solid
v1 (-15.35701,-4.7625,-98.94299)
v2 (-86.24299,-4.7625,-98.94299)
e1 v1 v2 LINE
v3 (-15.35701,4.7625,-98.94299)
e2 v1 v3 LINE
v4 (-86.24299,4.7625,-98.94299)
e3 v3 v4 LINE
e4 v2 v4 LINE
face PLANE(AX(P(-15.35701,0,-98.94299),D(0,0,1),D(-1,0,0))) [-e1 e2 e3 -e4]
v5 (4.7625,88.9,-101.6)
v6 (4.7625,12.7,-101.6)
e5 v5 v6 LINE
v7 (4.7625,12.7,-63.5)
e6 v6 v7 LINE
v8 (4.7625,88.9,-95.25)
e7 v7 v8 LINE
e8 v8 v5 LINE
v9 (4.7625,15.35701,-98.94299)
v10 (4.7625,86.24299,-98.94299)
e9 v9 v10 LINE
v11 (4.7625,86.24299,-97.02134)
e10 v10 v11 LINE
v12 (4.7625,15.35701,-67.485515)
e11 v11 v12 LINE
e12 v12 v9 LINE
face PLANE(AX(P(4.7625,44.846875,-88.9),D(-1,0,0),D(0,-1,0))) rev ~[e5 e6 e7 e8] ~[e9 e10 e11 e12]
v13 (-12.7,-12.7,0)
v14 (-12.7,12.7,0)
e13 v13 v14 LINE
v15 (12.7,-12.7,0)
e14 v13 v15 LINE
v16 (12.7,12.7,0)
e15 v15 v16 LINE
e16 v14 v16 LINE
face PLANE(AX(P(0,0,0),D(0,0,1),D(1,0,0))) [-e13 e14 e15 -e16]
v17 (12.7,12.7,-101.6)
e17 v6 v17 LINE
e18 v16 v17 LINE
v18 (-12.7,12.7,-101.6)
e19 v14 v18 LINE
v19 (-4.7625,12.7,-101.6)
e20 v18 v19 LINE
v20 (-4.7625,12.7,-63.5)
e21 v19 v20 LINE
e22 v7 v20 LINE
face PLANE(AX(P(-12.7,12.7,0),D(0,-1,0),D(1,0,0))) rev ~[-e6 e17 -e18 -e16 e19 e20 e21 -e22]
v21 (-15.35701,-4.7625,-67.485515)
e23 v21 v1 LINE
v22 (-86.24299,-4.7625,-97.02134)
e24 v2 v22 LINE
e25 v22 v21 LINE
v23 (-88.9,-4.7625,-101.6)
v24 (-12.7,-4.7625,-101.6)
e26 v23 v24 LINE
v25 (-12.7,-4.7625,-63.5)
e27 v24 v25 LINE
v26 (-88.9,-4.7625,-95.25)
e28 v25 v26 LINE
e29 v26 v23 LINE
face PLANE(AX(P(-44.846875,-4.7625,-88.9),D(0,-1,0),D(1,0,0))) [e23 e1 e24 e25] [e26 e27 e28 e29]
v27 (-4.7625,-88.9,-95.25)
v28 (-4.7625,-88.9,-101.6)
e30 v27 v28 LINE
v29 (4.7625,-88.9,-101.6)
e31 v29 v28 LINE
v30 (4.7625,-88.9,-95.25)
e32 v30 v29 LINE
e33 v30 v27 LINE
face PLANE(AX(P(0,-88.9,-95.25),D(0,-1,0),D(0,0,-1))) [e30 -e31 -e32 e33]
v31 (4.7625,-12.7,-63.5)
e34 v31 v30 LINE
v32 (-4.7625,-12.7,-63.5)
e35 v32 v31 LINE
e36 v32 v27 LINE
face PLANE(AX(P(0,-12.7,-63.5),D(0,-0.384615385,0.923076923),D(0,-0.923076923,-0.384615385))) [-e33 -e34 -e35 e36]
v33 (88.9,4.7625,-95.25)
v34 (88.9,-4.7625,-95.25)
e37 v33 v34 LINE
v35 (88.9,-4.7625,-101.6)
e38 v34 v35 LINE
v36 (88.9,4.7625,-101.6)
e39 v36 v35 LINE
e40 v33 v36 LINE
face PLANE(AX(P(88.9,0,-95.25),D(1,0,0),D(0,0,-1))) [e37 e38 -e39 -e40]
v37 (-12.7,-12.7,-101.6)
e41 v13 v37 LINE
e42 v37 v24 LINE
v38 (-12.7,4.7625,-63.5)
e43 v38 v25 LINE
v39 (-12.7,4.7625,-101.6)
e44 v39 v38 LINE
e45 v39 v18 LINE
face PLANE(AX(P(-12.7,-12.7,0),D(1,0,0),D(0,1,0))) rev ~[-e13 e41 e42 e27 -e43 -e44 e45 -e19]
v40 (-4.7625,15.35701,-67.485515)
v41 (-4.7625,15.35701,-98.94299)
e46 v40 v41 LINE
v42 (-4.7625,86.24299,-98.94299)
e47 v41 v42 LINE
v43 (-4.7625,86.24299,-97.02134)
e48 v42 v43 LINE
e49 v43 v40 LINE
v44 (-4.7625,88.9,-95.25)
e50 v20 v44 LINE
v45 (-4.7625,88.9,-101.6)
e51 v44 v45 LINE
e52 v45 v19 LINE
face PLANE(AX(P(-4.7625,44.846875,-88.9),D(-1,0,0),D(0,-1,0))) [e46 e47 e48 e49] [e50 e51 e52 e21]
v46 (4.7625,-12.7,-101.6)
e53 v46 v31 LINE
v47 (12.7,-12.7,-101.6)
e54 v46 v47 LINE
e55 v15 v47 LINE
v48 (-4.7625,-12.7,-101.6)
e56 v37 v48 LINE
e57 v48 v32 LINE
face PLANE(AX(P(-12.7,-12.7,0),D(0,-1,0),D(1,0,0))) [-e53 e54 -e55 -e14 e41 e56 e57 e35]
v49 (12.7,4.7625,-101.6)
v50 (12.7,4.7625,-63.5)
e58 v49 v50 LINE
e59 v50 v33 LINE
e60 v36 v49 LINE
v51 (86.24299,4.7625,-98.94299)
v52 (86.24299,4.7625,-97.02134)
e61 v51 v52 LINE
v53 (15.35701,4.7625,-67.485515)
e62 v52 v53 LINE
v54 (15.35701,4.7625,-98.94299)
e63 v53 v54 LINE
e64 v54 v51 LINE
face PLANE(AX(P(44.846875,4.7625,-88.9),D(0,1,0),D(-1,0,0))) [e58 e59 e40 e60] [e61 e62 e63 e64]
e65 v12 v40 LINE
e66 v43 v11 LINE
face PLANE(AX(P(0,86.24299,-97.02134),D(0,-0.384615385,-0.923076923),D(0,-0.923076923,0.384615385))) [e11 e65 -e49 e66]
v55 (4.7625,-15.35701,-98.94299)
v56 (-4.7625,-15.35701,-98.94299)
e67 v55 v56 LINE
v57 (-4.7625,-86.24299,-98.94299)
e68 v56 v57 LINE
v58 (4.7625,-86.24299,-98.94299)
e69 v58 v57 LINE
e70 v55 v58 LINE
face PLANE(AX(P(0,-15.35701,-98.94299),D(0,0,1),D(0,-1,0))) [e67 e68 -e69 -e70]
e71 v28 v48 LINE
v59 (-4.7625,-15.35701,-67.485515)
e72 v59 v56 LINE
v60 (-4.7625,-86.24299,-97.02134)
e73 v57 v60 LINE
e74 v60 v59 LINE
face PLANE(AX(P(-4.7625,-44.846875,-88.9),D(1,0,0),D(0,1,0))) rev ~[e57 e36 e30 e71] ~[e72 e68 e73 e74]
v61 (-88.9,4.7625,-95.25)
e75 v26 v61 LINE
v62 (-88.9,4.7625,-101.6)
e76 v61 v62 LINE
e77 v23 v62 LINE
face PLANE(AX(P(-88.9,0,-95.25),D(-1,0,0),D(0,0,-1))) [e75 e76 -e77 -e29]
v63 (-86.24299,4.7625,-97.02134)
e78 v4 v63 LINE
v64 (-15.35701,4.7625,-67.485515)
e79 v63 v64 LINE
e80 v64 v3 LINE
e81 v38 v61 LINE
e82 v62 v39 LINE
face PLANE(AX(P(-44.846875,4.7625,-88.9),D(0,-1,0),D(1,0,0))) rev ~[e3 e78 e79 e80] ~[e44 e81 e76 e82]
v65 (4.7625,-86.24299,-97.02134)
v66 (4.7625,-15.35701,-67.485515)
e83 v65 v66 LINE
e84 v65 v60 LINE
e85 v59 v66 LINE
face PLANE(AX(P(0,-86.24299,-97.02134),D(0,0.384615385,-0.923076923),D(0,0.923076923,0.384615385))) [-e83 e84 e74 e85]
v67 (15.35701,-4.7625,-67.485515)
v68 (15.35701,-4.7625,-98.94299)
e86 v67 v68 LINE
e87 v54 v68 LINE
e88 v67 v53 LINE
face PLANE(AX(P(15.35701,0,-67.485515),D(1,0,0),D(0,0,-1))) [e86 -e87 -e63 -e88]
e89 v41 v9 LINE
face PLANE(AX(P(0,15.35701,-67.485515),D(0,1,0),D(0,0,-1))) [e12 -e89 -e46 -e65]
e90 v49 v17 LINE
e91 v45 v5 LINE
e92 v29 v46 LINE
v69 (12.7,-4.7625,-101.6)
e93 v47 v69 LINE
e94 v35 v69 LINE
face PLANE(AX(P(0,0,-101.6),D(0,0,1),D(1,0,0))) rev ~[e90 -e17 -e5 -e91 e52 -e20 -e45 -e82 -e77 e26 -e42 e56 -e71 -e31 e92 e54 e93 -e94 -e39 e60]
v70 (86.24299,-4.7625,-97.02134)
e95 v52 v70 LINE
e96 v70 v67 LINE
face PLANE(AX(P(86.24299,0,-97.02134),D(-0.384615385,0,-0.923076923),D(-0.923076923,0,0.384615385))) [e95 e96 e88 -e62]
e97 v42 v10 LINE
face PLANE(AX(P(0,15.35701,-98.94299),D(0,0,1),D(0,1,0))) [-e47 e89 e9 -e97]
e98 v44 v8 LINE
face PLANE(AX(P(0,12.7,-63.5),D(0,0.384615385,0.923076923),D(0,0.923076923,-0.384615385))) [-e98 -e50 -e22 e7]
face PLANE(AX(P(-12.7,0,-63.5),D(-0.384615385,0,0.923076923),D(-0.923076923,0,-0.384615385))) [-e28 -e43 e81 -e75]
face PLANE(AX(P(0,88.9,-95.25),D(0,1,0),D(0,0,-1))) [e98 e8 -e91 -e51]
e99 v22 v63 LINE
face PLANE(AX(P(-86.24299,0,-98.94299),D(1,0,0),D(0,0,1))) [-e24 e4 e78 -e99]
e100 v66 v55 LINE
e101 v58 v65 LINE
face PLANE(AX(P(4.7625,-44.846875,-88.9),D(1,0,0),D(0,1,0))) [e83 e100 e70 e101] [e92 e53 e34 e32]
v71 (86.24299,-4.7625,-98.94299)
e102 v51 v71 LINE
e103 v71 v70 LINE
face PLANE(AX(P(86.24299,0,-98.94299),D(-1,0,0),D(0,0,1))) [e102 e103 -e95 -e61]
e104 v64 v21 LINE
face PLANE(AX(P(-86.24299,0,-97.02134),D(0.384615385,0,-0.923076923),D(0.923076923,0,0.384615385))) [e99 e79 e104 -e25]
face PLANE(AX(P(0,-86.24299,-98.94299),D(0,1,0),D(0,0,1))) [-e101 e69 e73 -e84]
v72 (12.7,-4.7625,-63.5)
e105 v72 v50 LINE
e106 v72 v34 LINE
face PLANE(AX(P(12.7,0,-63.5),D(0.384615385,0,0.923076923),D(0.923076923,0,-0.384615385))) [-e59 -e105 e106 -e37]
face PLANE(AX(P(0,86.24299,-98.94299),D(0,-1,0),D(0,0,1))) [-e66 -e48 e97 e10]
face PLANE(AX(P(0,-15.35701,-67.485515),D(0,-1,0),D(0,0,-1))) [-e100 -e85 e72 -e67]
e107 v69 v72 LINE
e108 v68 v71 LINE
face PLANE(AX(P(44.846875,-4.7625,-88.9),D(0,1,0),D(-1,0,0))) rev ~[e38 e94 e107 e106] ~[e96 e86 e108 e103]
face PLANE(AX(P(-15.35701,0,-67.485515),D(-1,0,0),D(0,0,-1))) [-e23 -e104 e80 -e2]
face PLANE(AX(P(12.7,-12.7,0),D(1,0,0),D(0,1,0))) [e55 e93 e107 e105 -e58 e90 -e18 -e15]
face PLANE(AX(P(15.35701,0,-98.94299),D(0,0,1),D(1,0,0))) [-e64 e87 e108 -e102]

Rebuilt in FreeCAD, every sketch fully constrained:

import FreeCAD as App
import Part
import Sketcher
Q = App.Units.Quantity


def add_polygon(sketch, points):
    """Adds a closed chain of lines whose ends are joined by coincident constraints."""
    first, n = sketch.GeometryCount, len(points)
    for a, b in zip(points, points[1:] + points[:1]):
        sketch.addGeometry(Part.LineSegment(App.Vector(*a, 0), App.Vector(*b, 0)), False)
    for i in range(n):
        sketch.addConstraint(Sketcher.Constraint("Coincident", first + i, 2, first + (i + 1) % n, 1))

doc = App.newDocument("Part")
body = doc.addObject("PartDesign::Body", "Body")

sketch1 = doc.addObject("Sketcher::SketchObject", "Sketch")
body.addObject(sketch1)
sketch1.AttachmentSupport = (doc.XY_Plane, [""])
sketch1.MapMode = "FlatFace"
add_polygon(sketch1, [(-13, 13), (-13, -13), (13, -13), (13, 13)])
sketch1.addConstraint(Sketcher.Constraint("Vertical", 0))
sketch1.addConstraint(Sketcher.Constraint("Horizontal", 1))
sketch1.addConstraint(Sketcher.Constraint("Vertical", 2))
sketch1.addConstraint(Sketcher.Constraint("Horizontal", 3))
sketch1.addConstraint(Sketcher.Constraint("Symmetric", 0, 2, 2, 2, -1, 1))
sketch1.addConstraint(Sketcher.Constraint("Equal", 3, 0))
sketch1.addConstraint(Sketcher.Constraint("DistanceX", 1, 1, 1, 2, Q("1 in")))
pad1 = doc.addObject("PartDesign::Pad", "Pad")
body.addObject(pad1)
pad1.Profile = sketch1
pad1.Length = Q("4 in")
pad1.Reversed = True

sketch2 = doc.addObject("Sketcher::SketchObject", "Sketch001")
body.addObject(sketch2)
sketch2.AttachmentSupport = (doc.YZ_Plane, [""])
sketch2.MapMode = "FlatFace"
add_polygon(sketch2, [(-88.9, -101.6), (-12.7, -101.6), (-12.7, -63.5), (-88.9, -95.2)])
add_polygon(sketch2, [(-86.2, -97), (-15.4, -67.5), (-15.4, -98.9), (-86.2, -98.9)])
sketch2.addConstraint(Sketcher.Constraint("Horizontal", 0))
sketch2.addConstraint(Sketcher.Constraint("Vertical", 1))
sketch2.addConstraint(Sketcher.Constraint("Vertical", 3))
sketch2.addConstraint(Sketcher.Constraint("Vertical", 5))
sketch2.addConstraint(Sketcher.Constraint("Horizontal", 6))
sketch2.addConstraint(Sketcher.Constraint("Vertical", 7))
sketch2.addConstraint(Sketcher.Constraint("Parallel", 2, 4))
sketch2.addConstraint(Sketcher.Constraint("DistanceX", 0, 1, 0, 2, Q("3 in")))
sketch2.addConstraint(Sketcher.Constraint("DistanceY", 1, 1, 1, 2, Q("1.5 in")))
sketch2.addConstraint(Sketcher.Constraint("DistanceY", 0, 2, -1, 1, Q("4 in")))
sketch2.addConstraint(Sketcher.Constraint("DistanceY", 3, 2, 3, 1, Q("0.25 in")))
sketch2.addConstraint(Sketcher.Constraint("DistanceX", 0, 2, -1, 1, Q("0.5 in")))
sketch2.addConstraint(Sketcher.Constraint("DistanceX", 6, 2, 6, 1, Q("70.88598 mm")))
sketch2.addConstraint(Sketcher.Constraint("DistanceY", 7, 1, 7, 2, Q("1.92165 mm")))
sketch2.addConstraint(Sketcher.Constraint("DistanceX", 4, 2, -1, 1, Q("15.35701 mm")))
sketch2.addConstraint(Sketcher.Constraint("DistanceY", 5, 2, -1, 1, Q("98.94299 mm")))
pad2 = doc.addObject("PartDesign::Pad", "Pad001")
body.addObject(pad2)
pad2.Profile = sketch2
pad2.Length = Q("0.375 in")
pad2.Midplane = True
body2 = doc.addObject("PartDesign::Body", "Body001")
doc.recompute()

body2.BaseFeature = body
doc.recompute()

body3 = doc.addObject("PartDesign::Body", "Body002")
body3.BaseFeature = body
body3.Placement = App.Placement(App.Vector(0, 0, 0), App.Rotation(App.Vector(0, 0, -1), 90))
boolean = doc.addObject("PartDesign::Boolean", "Boolean")
body2.addObject(boolean)
boolean.Type = "Fuse"
boolean.addObjects([body3])
doc.recompute()

body4 = doc.addObject("PartDesign::Body", "Body003")
body4.BaseFeature = body
body4.Placement = App.Placement(App.Vector(0, 0, 0), App.Rotation(App.Vector(0, 0, -1), 180))
boolean2 = doc.addObject("PartDesign::Boolean", "Boolean001")
body2.addObject(boolean2)
boolean2.Type = "Fuse"
boolean2.addObjects([body4])
doc.recompute()

body.Placement = App.Placement(App.Vector(0, 0, 0), App.Rotation(App.Vector(0, 0, -1), 270))
boolean3 = doc.addObject("PartDesign::Boolean", "Boolean002")
body2.addObject(boolean3)
boolean3.Type = "Fuse"
boolean3.addObjects([body])

doc.recompute()
